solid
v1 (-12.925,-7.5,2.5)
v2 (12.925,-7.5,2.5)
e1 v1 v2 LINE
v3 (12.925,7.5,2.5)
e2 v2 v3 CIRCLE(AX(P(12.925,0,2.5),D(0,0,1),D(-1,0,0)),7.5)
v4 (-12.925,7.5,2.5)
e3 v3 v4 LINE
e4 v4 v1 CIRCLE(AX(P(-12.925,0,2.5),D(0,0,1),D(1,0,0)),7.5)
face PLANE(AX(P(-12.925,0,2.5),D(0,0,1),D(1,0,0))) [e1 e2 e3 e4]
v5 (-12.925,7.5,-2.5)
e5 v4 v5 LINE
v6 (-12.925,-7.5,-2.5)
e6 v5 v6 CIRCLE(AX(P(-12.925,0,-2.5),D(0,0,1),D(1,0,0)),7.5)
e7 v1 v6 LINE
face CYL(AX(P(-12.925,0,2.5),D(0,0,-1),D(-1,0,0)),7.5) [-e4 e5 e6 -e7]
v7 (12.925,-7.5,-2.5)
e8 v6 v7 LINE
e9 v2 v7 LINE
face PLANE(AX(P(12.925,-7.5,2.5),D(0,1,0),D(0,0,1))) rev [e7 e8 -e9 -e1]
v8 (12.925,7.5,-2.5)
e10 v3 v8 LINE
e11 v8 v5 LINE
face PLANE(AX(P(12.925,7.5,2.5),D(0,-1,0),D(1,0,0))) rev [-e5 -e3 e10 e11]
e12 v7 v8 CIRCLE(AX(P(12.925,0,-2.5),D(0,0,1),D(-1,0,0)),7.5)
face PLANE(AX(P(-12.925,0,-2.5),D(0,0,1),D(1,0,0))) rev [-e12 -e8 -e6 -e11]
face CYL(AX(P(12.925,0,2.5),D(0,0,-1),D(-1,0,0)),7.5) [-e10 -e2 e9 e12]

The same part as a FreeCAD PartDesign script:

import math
import FreeCAD as App
import Part
import Sketcher

V = App.Vector

doc = App.newDocument("Part")
body = doc.addObject("PartDesign::Body", "Body")

sketch1 = doc.addObject("Sketcher::SketchObject", "Sketch")
body.addObject(sketch1)
sketch1.AttachmentSupport = (doc.XY_Plane, [""])
sketch1.MapMode = "FlatFace"
sketch1.addGeometry([
    Part.LineSegment(V(13, 8, 0), V(-13, 8, 0)),
    Part.ArcOfCircle(Part.Circle(V(-13, 0, 0), V(0, 0, 1), 8), math.radians(90), math.radians(270)),
    Part.LineSegment(V(-13, -8, 0), V(13, -8, 0)),
    Part.ArcOfCircle(Part.Circle(V(13, 0, 0), V(0, 0, 1), 8), math.radians(-90), math.radians(90)),
], False)
sketch1.addConstraint([
    Sketcher.Constraint("Tangent", 0, 2, 1, 1),
    Sketcher.Constraint("Tangent", 1, 2, 2, 1),
    Sketcher.Constraint("Tangent", 2, 2, 3, 1),
    Sketcher.Constraint("Tangent", 3, 2, 0, 1),
    Sketcher.Constraint("Horizontal", 0),
    Sketcher.Constraint("Horizontal", 2),
    Sketcher.Constraint("Symmetric", 1, 3, 3, 3, -1, 1),
    Sketcher.Constraint("Radius", 1, 7.5),
    Sketcher.Constraint("DistanceX", 0, 2, 0, 1, 25.85),
])
pad1 = doc.addObject("PartDesign::Pad", "Pad")
body.addObject(pad1)
pad1.Profile = sketch1
pad1.Length = 5
pad1.Midplane = True

doc.recompute()
